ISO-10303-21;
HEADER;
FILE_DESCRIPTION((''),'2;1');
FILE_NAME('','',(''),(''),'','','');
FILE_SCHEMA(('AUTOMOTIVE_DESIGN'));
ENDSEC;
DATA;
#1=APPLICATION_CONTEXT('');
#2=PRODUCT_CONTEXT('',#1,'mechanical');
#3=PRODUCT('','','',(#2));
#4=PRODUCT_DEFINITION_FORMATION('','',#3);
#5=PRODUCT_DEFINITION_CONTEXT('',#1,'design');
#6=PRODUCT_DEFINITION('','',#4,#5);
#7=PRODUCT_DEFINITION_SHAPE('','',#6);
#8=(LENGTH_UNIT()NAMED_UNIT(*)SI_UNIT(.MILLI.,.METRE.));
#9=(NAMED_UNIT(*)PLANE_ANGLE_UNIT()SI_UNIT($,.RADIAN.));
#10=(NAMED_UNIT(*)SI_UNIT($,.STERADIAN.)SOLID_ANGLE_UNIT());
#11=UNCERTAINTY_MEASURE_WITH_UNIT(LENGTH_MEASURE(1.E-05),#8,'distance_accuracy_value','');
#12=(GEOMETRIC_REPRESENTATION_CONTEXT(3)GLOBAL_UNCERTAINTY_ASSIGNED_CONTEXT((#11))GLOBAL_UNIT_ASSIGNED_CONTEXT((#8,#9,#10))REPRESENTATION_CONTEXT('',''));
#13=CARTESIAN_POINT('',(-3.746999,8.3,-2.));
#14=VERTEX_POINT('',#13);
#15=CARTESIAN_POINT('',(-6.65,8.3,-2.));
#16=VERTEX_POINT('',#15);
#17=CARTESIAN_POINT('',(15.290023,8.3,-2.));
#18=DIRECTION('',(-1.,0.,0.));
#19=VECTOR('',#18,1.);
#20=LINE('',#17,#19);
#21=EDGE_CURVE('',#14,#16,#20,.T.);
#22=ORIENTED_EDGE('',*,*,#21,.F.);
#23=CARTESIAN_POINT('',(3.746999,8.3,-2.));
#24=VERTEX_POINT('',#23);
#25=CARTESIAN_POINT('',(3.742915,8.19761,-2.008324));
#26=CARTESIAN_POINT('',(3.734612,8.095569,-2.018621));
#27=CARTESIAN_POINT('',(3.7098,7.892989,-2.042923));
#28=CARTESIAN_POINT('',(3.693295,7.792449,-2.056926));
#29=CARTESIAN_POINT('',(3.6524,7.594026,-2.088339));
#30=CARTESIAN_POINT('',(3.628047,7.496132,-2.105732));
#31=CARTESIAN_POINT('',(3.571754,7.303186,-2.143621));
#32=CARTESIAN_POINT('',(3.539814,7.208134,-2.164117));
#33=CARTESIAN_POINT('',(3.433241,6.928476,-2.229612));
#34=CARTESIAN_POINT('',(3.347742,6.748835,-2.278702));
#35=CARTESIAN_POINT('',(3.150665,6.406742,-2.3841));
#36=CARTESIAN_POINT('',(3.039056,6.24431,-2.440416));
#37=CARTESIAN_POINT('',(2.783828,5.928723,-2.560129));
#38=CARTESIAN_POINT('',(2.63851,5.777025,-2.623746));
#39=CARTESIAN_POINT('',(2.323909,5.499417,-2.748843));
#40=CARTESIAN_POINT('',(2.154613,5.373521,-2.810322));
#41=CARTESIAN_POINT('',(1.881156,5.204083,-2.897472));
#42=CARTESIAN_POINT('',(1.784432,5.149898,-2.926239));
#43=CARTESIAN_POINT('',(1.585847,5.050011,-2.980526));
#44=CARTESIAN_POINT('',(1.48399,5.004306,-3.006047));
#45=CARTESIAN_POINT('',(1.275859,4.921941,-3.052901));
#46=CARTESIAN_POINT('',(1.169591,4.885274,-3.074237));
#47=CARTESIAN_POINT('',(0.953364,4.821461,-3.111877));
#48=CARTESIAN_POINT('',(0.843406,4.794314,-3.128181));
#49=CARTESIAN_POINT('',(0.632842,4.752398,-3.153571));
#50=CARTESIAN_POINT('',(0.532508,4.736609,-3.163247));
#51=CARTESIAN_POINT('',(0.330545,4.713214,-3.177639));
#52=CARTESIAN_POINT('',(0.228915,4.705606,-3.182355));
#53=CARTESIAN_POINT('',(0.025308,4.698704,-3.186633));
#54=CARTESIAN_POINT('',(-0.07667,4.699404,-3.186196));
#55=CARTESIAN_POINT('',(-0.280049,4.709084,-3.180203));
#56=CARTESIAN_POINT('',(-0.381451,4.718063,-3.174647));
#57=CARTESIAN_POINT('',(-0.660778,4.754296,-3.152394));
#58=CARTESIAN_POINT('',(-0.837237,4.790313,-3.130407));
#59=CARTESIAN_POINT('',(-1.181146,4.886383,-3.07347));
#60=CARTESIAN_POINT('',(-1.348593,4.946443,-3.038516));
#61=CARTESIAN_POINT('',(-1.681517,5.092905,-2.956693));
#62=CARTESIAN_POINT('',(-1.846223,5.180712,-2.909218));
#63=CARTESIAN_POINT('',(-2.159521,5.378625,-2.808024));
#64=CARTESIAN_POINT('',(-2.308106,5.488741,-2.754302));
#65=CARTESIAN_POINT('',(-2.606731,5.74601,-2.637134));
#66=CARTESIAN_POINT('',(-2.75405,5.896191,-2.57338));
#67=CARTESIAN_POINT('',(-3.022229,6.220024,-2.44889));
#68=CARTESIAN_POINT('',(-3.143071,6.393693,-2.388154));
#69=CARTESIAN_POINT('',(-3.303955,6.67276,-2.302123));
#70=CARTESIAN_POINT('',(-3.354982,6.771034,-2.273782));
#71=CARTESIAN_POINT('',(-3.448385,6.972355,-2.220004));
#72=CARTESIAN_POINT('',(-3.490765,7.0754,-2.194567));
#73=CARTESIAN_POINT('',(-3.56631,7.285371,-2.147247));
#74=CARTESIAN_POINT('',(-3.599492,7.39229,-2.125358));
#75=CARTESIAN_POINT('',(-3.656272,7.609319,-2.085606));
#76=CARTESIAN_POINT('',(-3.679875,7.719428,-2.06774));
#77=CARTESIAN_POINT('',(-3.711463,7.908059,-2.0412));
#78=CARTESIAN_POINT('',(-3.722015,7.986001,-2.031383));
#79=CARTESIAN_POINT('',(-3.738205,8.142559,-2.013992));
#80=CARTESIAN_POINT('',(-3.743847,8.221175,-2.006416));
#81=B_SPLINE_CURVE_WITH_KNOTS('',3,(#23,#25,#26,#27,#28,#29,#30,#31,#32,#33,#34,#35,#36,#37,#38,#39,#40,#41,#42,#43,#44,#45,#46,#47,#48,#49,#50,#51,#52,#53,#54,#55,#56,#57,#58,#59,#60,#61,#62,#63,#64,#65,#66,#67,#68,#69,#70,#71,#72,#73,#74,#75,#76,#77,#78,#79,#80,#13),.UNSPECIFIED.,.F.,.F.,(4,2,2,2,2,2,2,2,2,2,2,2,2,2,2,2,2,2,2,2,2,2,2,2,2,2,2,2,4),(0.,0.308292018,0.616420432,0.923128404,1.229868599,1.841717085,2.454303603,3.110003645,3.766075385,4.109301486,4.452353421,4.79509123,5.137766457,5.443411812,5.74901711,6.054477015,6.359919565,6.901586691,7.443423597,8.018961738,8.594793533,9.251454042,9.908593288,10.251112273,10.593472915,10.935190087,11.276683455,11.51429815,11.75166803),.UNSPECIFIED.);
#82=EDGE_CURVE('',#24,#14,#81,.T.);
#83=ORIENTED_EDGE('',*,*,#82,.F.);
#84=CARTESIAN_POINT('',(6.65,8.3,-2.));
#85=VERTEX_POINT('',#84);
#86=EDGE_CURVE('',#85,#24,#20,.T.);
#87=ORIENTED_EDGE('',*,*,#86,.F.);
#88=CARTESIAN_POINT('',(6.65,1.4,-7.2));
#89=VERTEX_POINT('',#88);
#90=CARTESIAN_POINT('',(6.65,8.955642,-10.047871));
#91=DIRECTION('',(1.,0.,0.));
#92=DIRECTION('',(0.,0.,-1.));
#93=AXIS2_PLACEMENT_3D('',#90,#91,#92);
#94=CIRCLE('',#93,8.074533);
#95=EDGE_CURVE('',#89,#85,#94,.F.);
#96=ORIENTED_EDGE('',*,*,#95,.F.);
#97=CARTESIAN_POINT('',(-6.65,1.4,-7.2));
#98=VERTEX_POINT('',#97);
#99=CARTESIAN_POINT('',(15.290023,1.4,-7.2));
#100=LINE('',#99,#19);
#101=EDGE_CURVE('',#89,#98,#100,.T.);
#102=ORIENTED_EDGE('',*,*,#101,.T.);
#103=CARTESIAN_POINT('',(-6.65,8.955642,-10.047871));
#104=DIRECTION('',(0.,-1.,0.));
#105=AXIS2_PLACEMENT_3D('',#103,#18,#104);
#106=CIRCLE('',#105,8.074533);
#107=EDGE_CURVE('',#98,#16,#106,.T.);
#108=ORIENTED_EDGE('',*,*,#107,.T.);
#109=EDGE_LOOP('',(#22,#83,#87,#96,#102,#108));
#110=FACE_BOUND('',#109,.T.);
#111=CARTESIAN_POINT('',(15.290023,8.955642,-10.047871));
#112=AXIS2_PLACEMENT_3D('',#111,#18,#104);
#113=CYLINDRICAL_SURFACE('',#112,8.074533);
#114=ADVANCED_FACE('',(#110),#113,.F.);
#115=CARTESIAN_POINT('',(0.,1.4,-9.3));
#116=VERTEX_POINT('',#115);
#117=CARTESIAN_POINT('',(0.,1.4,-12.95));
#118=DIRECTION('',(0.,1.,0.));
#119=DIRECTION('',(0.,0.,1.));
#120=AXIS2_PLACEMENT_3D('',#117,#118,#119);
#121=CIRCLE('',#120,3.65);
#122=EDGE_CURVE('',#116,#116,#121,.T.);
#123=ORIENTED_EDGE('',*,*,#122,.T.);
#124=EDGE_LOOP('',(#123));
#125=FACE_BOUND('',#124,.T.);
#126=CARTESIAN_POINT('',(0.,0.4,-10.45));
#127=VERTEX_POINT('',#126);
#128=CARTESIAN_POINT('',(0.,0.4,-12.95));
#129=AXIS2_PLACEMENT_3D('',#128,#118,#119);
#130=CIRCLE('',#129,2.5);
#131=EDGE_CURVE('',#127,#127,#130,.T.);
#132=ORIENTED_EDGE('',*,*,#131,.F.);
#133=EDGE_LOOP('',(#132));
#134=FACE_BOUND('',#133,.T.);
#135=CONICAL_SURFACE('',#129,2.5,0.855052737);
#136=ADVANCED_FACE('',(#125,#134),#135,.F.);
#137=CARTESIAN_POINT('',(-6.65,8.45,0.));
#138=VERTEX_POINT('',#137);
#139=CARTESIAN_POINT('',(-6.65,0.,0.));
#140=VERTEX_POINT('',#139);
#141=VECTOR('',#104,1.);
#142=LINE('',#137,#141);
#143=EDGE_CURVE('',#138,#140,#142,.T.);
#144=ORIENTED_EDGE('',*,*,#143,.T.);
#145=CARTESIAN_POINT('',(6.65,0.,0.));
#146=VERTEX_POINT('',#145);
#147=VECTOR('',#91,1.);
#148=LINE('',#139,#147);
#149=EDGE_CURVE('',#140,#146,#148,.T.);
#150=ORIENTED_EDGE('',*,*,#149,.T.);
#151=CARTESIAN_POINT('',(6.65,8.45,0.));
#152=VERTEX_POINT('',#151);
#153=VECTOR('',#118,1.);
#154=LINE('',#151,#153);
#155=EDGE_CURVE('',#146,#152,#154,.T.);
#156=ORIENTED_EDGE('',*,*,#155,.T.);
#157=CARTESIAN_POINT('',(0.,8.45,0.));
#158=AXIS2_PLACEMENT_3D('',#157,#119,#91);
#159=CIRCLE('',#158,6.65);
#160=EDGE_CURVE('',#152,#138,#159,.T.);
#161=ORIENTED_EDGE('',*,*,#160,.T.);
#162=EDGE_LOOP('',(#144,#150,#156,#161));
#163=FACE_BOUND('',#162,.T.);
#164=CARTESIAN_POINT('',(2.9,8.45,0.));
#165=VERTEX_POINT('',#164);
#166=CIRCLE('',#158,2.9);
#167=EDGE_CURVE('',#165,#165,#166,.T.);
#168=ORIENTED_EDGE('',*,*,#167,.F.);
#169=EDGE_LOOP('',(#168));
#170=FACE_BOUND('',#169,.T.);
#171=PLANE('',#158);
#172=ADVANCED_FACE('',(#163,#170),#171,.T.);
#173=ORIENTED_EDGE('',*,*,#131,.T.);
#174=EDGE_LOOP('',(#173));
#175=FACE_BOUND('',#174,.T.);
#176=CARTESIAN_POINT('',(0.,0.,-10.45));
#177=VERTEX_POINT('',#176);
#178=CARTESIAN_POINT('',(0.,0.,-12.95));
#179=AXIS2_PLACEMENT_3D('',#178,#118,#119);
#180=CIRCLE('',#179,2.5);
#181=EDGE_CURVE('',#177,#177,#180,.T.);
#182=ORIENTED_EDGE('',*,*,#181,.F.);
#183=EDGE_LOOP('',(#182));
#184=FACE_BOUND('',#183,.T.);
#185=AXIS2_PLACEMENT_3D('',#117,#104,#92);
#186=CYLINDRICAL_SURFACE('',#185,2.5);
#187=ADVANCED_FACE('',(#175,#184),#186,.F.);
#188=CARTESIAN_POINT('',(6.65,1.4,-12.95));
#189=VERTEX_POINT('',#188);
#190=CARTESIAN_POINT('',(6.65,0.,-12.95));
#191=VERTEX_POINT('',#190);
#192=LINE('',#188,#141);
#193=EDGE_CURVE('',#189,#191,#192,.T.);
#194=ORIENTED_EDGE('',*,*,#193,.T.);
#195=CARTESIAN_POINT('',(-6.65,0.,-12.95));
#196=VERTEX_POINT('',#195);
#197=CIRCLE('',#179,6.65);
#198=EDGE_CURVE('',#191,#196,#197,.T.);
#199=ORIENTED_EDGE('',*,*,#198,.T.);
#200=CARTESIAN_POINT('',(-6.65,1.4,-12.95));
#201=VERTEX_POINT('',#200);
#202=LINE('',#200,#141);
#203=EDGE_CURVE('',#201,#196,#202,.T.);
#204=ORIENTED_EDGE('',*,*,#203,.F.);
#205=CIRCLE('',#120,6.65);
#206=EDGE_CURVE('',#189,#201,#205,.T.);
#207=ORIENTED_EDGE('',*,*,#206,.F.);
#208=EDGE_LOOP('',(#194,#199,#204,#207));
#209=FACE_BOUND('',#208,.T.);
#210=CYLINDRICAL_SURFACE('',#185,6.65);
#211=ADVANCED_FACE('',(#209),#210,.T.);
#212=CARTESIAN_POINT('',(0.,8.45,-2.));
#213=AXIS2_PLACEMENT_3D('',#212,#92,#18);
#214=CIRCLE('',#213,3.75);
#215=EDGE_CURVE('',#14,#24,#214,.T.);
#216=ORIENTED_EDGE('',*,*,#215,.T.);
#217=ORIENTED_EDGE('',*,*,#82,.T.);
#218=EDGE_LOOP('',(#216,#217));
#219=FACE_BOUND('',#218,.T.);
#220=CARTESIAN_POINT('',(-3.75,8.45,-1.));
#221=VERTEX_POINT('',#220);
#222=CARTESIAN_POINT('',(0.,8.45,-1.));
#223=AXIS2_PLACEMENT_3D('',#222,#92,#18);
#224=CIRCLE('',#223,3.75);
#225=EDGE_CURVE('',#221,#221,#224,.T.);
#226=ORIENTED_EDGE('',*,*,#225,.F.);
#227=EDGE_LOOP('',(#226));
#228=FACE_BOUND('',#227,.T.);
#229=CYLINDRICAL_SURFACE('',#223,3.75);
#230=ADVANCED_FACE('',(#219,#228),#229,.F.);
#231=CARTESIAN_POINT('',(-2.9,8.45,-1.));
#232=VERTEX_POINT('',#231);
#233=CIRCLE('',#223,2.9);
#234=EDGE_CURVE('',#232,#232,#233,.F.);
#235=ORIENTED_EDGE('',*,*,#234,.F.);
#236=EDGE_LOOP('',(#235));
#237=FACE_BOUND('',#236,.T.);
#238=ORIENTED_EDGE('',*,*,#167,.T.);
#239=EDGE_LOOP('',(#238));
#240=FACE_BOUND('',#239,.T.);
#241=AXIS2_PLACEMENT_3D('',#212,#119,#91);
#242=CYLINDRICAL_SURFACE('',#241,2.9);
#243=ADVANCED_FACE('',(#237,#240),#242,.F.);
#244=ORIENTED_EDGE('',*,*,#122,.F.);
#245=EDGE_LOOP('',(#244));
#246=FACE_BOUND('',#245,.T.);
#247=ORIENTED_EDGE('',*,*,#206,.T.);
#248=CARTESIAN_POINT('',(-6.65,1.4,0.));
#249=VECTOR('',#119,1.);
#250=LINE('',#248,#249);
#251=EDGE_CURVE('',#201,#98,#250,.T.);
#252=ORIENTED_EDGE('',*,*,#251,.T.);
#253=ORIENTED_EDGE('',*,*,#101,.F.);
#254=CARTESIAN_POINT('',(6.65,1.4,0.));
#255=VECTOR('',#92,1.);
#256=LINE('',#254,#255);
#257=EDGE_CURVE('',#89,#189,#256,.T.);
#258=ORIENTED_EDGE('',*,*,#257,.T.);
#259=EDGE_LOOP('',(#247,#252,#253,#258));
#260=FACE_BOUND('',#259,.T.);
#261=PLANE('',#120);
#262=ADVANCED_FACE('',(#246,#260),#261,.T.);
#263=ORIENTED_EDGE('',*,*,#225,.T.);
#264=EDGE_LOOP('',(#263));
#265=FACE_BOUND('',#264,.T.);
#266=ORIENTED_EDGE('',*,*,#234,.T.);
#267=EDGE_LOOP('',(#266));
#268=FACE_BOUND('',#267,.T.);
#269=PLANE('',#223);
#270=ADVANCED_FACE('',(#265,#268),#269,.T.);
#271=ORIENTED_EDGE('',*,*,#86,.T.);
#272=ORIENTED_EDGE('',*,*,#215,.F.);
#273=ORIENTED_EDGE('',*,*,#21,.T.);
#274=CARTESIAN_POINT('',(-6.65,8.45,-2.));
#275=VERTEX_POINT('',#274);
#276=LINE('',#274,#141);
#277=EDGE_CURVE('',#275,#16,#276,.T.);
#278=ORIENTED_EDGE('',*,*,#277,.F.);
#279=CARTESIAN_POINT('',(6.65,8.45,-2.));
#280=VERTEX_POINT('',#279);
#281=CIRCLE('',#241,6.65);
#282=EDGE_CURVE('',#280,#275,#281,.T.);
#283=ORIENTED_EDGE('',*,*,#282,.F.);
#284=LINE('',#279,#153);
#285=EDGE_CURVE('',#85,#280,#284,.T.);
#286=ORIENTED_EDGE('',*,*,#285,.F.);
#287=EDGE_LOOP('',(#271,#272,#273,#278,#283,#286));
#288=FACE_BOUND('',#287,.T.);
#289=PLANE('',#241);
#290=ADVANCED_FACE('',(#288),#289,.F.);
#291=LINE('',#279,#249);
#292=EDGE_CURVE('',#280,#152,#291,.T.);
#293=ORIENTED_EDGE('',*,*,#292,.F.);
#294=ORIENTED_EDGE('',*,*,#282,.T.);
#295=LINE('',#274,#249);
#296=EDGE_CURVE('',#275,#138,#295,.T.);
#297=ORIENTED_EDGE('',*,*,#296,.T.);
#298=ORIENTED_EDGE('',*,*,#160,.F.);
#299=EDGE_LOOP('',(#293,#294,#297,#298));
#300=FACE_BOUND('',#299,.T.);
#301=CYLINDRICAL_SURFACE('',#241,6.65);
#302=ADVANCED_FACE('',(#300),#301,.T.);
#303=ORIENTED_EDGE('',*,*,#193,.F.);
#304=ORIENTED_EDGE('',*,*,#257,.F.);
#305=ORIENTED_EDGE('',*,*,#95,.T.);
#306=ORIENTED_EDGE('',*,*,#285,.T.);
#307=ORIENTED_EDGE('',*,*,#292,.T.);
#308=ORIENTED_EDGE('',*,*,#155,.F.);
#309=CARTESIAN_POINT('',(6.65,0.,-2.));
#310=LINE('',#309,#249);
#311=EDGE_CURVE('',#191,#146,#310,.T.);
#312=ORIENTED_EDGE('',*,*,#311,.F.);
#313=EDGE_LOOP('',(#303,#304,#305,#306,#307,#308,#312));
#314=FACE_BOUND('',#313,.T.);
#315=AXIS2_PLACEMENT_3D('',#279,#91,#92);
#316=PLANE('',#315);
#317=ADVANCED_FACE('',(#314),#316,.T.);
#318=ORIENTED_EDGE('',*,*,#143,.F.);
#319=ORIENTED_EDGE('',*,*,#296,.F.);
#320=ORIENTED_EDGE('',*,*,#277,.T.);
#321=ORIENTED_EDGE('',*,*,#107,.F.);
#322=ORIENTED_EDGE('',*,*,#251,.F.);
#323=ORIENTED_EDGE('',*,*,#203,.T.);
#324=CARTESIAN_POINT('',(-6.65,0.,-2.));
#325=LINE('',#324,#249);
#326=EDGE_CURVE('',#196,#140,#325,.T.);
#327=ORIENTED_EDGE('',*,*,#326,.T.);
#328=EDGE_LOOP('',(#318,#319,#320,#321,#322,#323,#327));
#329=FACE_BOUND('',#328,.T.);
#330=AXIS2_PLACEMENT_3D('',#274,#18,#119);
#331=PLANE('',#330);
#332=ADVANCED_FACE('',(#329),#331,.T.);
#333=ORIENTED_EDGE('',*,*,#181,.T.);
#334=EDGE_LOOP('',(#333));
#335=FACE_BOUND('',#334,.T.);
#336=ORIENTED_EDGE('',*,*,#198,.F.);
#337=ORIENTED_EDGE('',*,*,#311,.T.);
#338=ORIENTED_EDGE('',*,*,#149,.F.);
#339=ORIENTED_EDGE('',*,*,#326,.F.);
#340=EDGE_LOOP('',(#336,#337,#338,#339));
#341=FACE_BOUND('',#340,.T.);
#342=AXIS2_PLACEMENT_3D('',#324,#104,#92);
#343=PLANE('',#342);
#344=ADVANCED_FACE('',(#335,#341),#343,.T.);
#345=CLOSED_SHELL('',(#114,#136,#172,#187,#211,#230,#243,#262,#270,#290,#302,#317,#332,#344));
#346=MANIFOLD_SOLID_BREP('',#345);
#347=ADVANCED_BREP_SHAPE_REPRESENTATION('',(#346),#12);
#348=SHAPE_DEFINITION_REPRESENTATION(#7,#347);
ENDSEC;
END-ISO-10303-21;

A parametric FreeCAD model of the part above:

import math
import FreeCAD as App
import Part
import Sketcher
from FreeCAD import Vector

doc = App.newDocument("Part")
body = doc.addObject("PartDesign::Body", "Body")

# Sketch on XY plane
sketch1 = body.newObject("Sketcher::SketchObject", "Sketch")
sketch1.AttachmentSupport = (doc.getObject("XY_Plane"), [""])
sketch1.MapMode = "FlatFace"
sketch1.addGeometry([
    Part.LineSegment(Vector(-6.7, 8.4, 0), Vector(-6.7, 0, 0)),  # 0
    Part.LineSegment(Vector(-6.7, 0, 0), Vector(6.7, 0, 0)),  # 1
    Part.LineSegment(Vector(6.7, 0, 0), Vector(6.7, 8.4, 0)),  # 2
    Part.ArcOfCircle(Part.Circle(Vector(0, 8.4, 0), Vector(0, 0, 1), 6.7), math.radians(0), math.radians(180)),  # 3
    Part.Circle(Vector(0, 8.4, 0), Vector(0, 0, 1), 2.9),  # 4
], False)
sketch1.addConstraint([
    Sketcher.Constraint("Coincident", 0, 2, 1, 1),
    Sketcher.Constraint("Coincident", 1, 2, 2, 1),
    Sketcher.Constraint("Tangent", 2, 2, 3, 1),
    Sketcher.Constraint("Tangent", 3, 2, 0, 1),
    Sketcher.Constraint("Vertical", 0),
    Sketcher.Constraint("Horizontal", 1),
    Sketcher.Constraint("Vertical", 2),
    Sketcher.Constraint("Coincident", 4, 3, 3, 3),
    Sketcher.Constraint("Symmetric", 0, 2, 1, 2, -1, 1),
    Sketcher.Constraint("Diameter", 4, 5.8),
    Sketcher.Constraint("Radius", 3, 6.65),
    Sketcher.Constraint("DistanceY", 0, 2, 0, 1, 8.45),
])
pad1 = body.newObject("PartDesign::Pad", "Pad")
pad1.Profile = sketch1
pad1.Length = 2
pad1.Reversed = True

# Sketch on XZ plane
sketch2 = body.newObject("Sketcher::SketchObject", "Sketch001")
sketch2.AttachmentSupport = (doc.getObject("XZ_Plane"), [""])
sketch2.MapMode = "FlatFace"
sketch2.addGeometry([
    Part.LineSegment(Vector(-6.7, 0, 0), Vector(6.7, 0, 0)),  # 0
    Part.LineSegment(Vector(6.7, 0, 0), Vector(6.7, -12.9, 0)),  # 1
    Part.ArcOfCircle(Part.Circle(Vector(0, -12.9, 0), Vector(0, 0, 1), 6.7), math.radians(180), math.radians(360)),  # 2
    Part.LineSegment(Vector(-6.7, -12.9, 0), Vector(-6.7, 0, 0)),  # 3
    Part.Circle(Vector(0, -12.9, 0), Vector(0, 0, 1), 2.5),  # 4
], False)
sketch2.addConstraint([
    Sketcher.Constraint("Coincident", 0, 2, 1, 1),
    Sketcher.Constraint("Tangent", 1, 2, 2, 2),
    Sketcher.Constraint("Tangent", 2, 1, 3, 1),
    Sketcher.Constraint("Coincident", 3, 2, 0, 1),
    Sketcher.Constraint("Horizontal", 0),
    Sketcher.Constraint("Vertical", 1),
    Sketcher.Constraint("Vertical", 3),
    Sketcher.Constraint("Coincident", 4, 3, 2, 3),
    Sketcher.Constraint("Symmetric", 0, 2, 3, 2, -1, 1),
    Sketcher.Constraint("Diameter", 4, 5.0),
    Sketcher.Constraint("Radius", 2, 6.65),
    Sketcher.Constraint("DistanceY", 1, 2, 1, 1, 12.95),
])
pad2 = body.newObject("PartDesign::Pad", "Pad001")
pad2.Profile = sketch2
pad2.Length = 1.4
pad2.Reversed = True

# Sketch on YZ plane
sketch3 = body.newObject("Sketcher::SketchObject", "Sketch002")
sketch3.AttachmentSupport = (doc.getObject("YZ_Plane"), [""])
sketch3.MapMode = "FlatFace"
sketch3.AttachmentOffset = App.Placement(Vector(0, 0, 6.65), App.Rotation())
sketch3.addGeometry([
    Part.LineSegment(Vector(1, -2, 0), Vector(8, -2, 0)),
    Part.ArcOfCircle(Part.Circle(Vector(9, -10, 0), Vector(0, 0, 1), 8), math.radians(95), math.radians(159)),
    Part.LineSegment(Vector(1, -7, 0), Vector(1, -2, 0)),
], False)
sketch3.addConstraint([
    Sketcher.Constraint("Coincident", 0, 2, 1, 1),
    Sketcher.Constraint("Coincident", 1, 2, 2, 1),
    Sketcher.Constraint("Coincident", 2, 2, 0, 1),
    Sketcher.Constraint("Horizontal", 0),
    Sketcher.Constraint("Vertical", 2),
    Sketcher.Constraint("DistanceX", 0, 1, 0, 2, 6.9),
    Sketcher.Constraint("DistanceY", 2, 1, 2, 2, 5.2),
    Sketcher.Constraint("DistanceY", 0, 2, -1, 1, 2.0),
    Sketcher.Constraint("DistanceX", -1, 1, 0, 2, 8.3),
    Sketcher.Constraint("Radius", 1, 8.074533),
])
pad3 = body.newObject("PartDesign::Pad", "Pad002")
pad3.Profile = sketch3
pad3.Length = 13.3
pad3.Reversed = True

# Sketch on XY plane
sketch4 = body.newObject("Sketcher::SketchObject", "Sketch003")
sketch4.AttachmentSupport = (doc.getObject("XY_Plane"), [""])
sketch4.MapMode = "FlatFace"
sketch4.AttachmentOffset = App.Placement(Vector(0, 0, -2), App.Rotation())
sketch4.addGeometry(Part.Circle(Vector(0, 8.4, 0), Vector(0, 0, 1), 3.8), False)
sketch4.addConstraint([
    Sketcher.Constraint("PointOnObject", 0, 3, -2),
    Sketcher.Constraint("Diameter", 0, 7.5),
    Sketcher.Constraint("DistanceY", -1, 1, 0, 3, 8.45),
])
pocket1 = body.newObject("PartDesign::Pocket", "Pocket")
pocket1.Profile = sketch4
pocket1.Length = 1
pocket1.Reversed = True

# Sketch on XY plane
sketch5 = body.newObject("Sketcher::SketchObject", "Sketch004")
sketch5.AttachmentSupport = (doc.getObject("XY_Plane"), [""])
sketch5.MapMode = "FlatFace"
sketch5.AttachmentOffset = App.Placement(Vector(0, 0, -1), App.Rotation())
sketch5.addGeometry(Part.Circle(Vector(0, 8.4, 0), Vector(0, 0, 1), 3.8), False)
sketch5.addConstraint([
    Sketcher.Constraint("PointOnObject", 0, 3, -2),
    Sketcher.Constraint("Diameter", 0, 7.5),
    Sketcher.Constraint("DistanceY", -1, 1, 0, 3, 8.45),
])
pocket2 = body.newObject("PartDesign::Pocket", "Pocket001")
pocket2.Profile = sketch5
pocket2.Type = "ThroughAll"

# Sketch on XZ plane
sketch6 = body.newObject("Sketcher::SketchObject", "Sketch005")
sketch6.AttachmentSupport = (doc.getObject("XZ_Plane"), [""])
sketch6.MapMode = "FlatFace"
sketch6.AttachmentOffset = App.Placement(Vector(0, 0, -0.4), App.Rotation())
sketch6.addGeometry(Part.Circle(Vector(0, -12.9, 0), Vector(0, 0, 1), 2.5), False)
sketch6.addConstraint([
    Sketcher.Constraint("PointOnObject", 0, 3, -2),
    Sketcher.Constraint("Diameter", 0, 5.0),
    Sketcher.Constraint("DistanceY", 0, 3, -1, 1, 12.95),
])

# Sketch on XZ plane
sketch7 = body.newObject("Sketcher::SketchObject", "Sketch006")
sketch7.AttachmentSupport = (doc.getObject("XZ_Plane"), [""])
sketch7.MapMode = "FlatFace"
sketch7.AttachmentOffset = App.Placement(Vector(0, 0, -1.4), App.Rotation())
sketch7.addGeometry(Part.Circle(Vector(0, -12.9, 0), Vector(0, 0, 1), 3.6), False)
sketch7.addConstraint([
    Sketcher.Constraint("PointOnObject", 0, 3, -2),
    Sketcher.Constraint("Diameter", 0, 7.3),
    Sketcher.Constraint("DistanceY", 0, 3, -1, 1, 12.95),
])

subtractiveloft = body.newObject("PartDesign::SubtractiveLoft", "SubtractiveLoft")
subtractiveloft.Profile = sketch6
subtractiveloft.Sections = [sketch7]

doc.recompute()
